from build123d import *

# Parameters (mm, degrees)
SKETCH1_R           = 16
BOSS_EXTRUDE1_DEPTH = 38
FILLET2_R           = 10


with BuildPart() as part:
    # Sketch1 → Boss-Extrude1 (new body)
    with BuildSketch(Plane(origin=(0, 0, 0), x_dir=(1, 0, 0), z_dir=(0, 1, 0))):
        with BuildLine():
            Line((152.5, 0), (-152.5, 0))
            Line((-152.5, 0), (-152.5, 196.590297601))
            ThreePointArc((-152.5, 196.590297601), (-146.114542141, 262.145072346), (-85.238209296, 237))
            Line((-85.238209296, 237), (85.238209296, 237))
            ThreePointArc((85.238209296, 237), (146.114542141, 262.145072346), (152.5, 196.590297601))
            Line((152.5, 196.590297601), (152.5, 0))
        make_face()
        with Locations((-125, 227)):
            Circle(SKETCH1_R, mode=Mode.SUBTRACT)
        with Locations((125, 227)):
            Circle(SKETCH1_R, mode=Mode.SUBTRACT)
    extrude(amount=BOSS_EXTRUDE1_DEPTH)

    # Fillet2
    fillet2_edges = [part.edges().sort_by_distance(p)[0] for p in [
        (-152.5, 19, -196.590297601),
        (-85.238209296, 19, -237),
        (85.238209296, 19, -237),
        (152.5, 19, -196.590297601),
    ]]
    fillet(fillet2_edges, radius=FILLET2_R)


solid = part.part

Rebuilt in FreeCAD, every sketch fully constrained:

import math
import FreeCAD as App
import Part
import Sketcher
from FreeCAD import Vector
Q = App.Units.Quantity


def edges_at(feature, points):
    """Names of the edges that pass closest to the given points."""
    edges = feature.Shape.Edges
    near = lambda p: min(range(len(edges)), key=lambda i: edges[i].distToShape(Part.Vertex(*p))[0])
    return sorted({f"Edge{near(p) + 1}" for p in points})

doc = App.newDocument("Part")
body = doc.addObject("PartDesign::Body", "Body")

sketch1 = body.newObject("Sketcher::SketchObject", "Sketch")
sketch1.AttachmentSupport = (doc.getObject("XZ_Plane"), [""])
sketch1.MapMode = "FlatFace"
sketch1.addGeometry([
    Part.LineSegment(Vector(-152, 0, 0), Vector(152, 0, 0)),
    Part.LineSegment(Vector(152, 0, 0), Vector(152, -197, 0)),
    Part.ArcOfCircle(Part.Circle(Vector(125, -227, 0), Vector(0, 0, 1), 41), math.radians(-166), math.radians(48)),
    Part.LineSegment(Vector(85, -237, 0), Vector(-85, -237, 0)),
    Part.ArcOfCircle(Part.Circle(Vector(-125, -227, 0), Vector(0, 0, 1), 41), math.radians(132), math.radians(346)),
    Part.LineSegment(Vector(-152, -197, 0), Vector(-152, 0, 0)),
    Part.Circle(Vector(125, -227, 0), Vector(0, 0, 1), 16),
    Part.Circle(Vector(-125, -227, 0), Vector(0, 0, 1), 16),
], False)
sketch1.addConstraint([
    Sketcher.Constraint("Coincident", 0, 2, 1, 1),
    Sketcher.Constraint("Coincident", 1, 2, 2, 2),
    Sketcher.Constraint("Coincident", 2, 1, 3, 1),
    Sketcher.Constraint("Coincident", 3, 2, 4, 2),
    Sketcher.Constraint("Coincident", 4, 1, 5, 1),
    Sketcher.Constraint("Coincident", 5, 2, 0, 1),
    Sketcher.Constraint("Horizontal", 0),
    Sketcher.Constraint("Vertical", 1),
    Sketcher.Constraint("Horizontal", 3),
    Sketcher.Constraint("Vertical", 5),
    Sketcher.Constraint("Coincident", 6, 3, 2, 3),
    Sketcher.Constraint("Coincident", 7, 3, 4, 3),
    Sketcher.Constraint("Equal", 2, 4),
    Sketcher.Constraint("Equal", 6, 7),
    Sketcher.Constraint("Symmetric", 0, 2, 5, 2, -1, 1),
    Sketcher.Constraint("Symmetric", 2, 3, 4, 3, -2),
    Sketcher.Constraint("Diameter", 6, Q("32 mm")),
    Sketcher.Constraint("Radius", 2, Q("41 mm")),
    Sketcher.Constraint("DistanceX", 0, 1, 0, 2, Q("305 mm")),
    Sketcher.Constraint("DistanceX", -1, 1, 2, 3, Q("125 mm")),
    Sketcher.Constraint("DistanceY", 2, 3, -1, 1, Q("227 mm")),
    Sketcher.Constraint("DistanceY", 2, 1, -1, 1, Q("237 mm")),
])
pad1 = body.newObject("PartDesign::Pad", "Pad")
pad1.Profile = sketch1
pad1.Length = 38
pad1.Reversed = True
doc.recompute()

fillet = body.newObject("PartDesign::Fillet", "Fillet")
fillet.Base = (pad1, edges_at(pad1, [
    (-152.5, 19, -196.59),
    (-85.238, 19, -237),
    (85.238, 19, -237),
    (152.5, 19, -196.59),
]))
fillet.Radius = 10

doc.recompute()
